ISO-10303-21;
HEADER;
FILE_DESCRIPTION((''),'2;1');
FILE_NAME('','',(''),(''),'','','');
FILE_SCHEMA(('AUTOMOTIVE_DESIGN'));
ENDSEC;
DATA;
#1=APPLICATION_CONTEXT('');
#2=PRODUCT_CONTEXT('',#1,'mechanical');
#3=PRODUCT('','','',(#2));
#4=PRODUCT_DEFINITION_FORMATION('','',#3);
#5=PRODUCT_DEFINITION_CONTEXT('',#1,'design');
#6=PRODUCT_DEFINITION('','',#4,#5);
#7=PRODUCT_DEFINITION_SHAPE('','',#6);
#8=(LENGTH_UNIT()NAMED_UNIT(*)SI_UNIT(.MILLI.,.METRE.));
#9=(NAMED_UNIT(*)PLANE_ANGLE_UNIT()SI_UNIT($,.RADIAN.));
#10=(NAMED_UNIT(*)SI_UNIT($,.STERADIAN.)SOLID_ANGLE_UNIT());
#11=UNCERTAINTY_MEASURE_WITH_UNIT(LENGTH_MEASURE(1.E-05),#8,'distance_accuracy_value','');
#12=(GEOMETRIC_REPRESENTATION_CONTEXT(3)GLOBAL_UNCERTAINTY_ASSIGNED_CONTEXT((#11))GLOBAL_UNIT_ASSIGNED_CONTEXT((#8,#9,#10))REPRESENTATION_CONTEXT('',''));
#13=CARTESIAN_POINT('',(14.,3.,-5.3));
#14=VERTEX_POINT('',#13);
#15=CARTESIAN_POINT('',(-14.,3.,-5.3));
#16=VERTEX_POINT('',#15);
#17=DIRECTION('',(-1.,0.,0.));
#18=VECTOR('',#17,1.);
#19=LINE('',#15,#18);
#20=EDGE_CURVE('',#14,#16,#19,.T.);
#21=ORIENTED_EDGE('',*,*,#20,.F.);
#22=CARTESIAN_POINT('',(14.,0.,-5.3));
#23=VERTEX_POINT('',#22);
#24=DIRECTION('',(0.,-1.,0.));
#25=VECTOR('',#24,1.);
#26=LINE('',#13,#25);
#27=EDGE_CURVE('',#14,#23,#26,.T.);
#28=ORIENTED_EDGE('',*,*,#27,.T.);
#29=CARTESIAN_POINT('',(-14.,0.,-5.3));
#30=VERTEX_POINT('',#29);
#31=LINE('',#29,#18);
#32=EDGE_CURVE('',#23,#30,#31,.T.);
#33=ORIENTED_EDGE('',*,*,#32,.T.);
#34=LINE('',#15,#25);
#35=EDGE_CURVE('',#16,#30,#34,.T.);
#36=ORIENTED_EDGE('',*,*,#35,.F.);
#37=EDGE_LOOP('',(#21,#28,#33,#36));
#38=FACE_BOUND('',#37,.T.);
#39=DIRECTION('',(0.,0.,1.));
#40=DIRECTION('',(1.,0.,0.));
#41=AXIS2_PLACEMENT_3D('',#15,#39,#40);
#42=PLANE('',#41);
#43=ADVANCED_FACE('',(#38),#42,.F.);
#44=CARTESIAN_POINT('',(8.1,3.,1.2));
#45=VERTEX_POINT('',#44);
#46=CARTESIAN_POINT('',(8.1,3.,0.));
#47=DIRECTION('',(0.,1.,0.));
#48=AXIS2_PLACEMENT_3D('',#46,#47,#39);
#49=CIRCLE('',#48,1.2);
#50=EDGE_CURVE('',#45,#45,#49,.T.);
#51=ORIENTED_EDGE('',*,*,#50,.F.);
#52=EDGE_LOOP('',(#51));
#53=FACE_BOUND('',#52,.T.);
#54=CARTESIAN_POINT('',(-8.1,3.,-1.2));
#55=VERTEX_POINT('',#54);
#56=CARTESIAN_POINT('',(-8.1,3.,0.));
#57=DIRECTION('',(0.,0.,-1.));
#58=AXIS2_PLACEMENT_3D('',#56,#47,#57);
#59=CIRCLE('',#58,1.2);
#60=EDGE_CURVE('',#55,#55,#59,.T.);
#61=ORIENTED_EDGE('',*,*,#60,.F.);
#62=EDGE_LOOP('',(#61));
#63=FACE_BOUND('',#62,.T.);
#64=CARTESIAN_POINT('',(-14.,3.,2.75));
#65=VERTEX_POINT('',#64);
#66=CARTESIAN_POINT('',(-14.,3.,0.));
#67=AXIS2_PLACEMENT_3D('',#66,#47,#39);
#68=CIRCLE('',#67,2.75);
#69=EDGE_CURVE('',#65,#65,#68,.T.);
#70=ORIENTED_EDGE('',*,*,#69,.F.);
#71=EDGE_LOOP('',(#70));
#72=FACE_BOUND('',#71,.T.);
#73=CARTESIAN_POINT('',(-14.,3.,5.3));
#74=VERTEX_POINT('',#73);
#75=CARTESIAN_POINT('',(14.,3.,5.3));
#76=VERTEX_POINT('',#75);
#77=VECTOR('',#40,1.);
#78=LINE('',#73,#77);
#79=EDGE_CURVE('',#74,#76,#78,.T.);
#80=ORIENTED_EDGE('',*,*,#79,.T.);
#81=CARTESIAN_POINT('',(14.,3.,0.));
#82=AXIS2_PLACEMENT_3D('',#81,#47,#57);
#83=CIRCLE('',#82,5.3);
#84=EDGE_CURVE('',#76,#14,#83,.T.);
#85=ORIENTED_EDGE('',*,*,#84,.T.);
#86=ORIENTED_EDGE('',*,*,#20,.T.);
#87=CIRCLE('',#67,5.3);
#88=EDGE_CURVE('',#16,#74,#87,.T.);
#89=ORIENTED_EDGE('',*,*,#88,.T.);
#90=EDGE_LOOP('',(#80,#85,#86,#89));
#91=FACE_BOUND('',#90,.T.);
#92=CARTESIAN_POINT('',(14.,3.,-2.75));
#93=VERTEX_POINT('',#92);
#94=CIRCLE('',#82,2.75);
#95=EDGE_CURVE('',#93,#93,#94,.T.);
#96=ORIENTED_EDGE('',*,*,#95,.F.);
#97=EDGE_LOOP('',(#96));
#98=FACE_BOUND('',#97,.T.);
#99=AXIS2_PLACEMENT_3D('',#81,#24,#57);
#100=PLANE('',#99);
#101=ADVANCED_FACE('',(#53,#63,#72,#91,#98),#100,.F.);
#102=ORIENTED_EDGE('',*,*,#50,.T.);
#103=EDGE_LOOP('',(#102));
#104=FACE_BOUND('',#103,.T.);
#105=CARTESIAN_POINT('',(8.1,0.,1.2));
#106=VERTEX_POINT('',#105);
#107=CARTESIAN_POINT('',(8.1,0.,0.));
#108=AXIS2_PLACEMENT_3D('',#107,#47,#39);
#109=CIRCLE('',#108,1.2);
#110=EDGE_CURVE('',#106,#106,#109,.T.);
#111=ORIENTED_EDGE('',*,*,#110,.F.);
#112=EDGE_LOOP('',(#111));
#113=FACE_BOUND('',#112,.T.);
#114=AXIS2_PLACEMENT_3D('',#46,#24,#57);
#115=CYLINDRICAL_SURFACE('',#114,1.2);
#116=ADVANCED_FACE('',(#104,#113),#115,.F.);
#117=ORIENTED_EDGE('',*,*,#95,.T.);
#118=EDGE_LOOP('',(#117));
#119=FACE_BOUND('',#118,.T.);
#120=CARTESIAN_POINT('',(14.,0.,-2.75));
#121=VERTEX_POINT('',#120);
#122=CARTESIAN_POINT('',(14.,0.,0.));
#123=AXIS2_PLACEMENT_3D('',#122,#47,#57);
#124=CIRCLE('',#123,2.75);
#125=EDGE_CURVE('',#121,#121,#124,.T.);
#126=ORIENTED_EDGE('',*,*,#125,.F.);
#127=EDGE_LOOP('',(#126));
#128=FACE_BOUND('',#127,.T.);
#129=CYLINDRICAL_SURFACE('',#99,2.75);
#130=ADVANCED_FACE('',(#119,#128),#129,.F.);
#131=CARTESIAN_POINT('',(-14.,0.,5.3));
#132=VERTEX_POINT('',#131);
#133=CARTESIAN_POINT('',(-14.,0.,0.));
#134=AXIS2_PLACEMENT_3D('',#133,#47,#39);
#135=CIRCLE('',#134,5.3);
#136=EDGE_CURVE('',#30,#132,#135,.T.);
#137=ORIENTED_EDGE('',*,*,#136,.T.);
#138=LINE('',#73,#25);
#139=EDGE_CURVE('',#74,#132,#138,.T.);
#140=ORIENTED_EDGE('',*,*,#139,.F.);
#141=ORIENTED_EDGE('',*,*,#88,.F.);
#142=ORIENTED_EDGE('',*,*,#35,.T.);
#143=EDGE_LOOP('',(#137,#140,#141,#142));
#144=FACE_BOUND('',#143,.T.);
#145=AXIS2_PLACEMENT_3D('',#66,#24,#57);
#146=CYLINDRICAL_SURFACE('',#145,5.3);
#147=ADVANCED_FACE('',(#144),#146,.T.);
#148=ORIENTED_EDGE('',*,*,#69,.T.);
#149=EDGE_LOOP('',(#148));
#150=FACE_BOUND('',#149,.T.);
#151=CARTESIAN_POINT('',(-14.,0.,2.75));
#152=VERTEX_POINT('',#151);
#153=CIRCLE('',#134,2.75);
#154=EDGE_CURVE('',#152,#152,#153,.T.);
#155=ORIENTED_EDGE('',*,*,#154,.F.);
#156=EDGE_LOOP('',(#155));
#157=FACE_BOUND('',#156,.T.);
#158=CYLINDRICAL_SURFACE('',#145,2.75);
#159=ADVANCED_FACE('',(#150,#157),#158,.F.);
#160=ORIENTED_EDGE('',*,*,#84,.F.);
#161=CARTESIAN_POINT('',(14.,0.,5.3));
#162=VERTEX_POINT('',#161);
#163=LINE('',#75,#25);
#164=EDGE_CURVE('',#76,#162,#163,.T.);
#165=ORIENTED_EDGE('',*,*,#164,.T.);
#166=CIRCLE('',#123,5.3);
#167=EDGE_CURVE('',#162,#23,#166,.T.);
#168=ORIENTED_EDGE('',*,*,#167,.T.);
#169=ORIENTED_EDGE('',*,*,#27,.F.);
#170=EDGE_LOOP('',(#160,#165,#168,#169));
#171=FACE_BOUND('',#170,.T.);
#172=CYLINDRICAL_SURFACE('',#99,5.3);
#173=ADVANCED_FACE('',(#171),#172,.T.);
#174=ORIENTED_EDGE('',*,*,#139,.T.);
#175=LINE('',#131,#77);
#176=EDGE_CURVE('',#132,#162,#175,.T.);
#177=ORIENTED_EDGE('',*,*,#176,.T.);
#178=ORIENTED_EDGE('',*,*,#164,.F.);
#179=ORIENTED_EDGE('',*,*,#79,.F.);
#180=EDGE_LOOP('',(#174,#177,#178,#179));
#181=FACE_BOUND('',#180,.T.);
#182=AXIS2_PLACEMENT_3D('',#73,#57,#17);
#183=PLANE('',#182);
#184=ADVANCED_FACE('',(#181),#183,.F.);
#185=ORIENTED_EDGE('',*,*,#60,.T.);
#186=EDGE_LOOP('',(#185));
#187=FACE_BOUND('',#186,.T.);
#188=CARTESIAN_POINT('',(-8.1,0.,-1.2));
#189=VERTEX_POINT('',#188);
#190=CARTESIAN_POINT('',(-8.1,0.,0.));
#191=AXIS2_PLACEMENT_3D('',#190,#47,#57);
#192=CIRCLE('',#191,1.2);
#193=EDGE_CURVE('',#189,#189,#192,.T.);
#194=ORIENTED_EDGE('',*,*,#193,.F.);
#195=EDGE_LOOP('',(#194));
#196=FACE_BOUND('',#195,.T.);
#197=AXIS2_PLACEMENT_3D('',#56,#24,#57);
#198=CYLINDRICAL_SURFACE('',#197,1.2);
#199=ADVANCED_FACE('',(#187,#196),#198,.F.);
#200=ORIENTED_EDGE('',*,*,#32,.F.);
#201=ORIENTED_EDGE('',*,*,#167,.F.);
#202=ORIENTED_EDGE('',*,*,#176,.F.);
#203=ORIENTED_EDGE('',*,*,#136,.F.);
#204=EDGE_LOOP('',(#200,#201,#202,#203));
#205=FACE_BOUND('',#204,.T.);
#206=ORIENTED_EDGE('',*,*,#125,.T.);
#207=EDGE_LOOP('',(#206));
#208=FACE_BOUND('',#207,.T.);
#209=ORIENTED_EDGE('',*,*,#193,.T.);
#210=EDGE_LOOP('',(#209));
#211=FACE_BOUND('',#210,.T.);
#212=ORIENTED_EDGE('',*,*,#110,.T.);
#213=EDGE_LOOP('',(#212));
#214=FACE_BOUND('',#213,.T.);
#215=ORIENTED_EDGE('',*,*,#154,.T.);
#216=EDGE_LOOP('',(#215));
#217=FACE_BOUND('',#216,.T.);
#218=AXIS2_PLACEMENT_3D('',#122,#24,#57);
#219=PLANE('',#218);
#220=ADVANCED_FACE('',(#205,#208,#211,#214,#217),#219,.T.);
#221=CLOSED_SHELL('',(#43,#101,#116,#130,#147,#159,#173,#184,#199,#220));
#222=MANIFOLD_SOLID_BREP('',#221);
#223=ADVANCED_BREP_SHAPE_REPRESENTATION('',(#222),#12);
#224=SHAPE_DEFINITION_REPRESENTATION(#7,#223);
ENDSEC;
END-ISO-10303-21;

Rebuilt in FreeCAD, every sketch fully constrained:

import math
import FreeCAD as App
import Part
import Sketcher

V = App.Vector

doc = App.newDocument("Part")
body = doc.addObject("PartDesign::Body", "Body")

# Sketch on XZ plane
sketch1 = body.newObject("Sketcher::SketchObject", "Sketch")
sketch1.AttachmentSupport = (doc.getObject("XZ_Plane"), [""])
sketch1.MapMode = "FlatFace"
sketch1.addGeometry(Part.LineSegment(V(14, -5.3, 0), V(-14, -5.3, 0)), False)
sketch1.addGeometry(Part.ArcOfCircle(Part.Circle(V(-14, 0, 0), V(0, 0, 1), 5.3), math.radians(90), math.radians(270)), False)
sketch1.addGeometry(Part.LineSegment(V(-14, 5.3, 0), V(14, 5.3, 0)), False)
sketch1.addGeometry(Part.ArcOfCircle(Part.Circle(V(14, 0, 0), V(0, 0, 1), 5.3), math.radians(-90), math.radians(90)), False)
sketch1.addGeometry(Part.Circle(V(14, 0, 0), V(0, 0, 1), 2.8), False)
sketch1.addGeometry(Part.Circle(V(8.1, 0, 0), V(0, 0, 1), 1.2), False)
sketch1.addGeometry(Part.Circle(V(-8.1, 0, 0), V(0, 0, 1), 1.2), False)
sketch1.addGeometry(Part.Circle(V(-14, 0, 0), V(0, 0, 1), 2.8), False)
sketch1.addConstraint(Sketcher.Constraint("Tangent", 0, 2, 1, 2))
sketch1.addConstraint(Sketcher.Constraint("Tangent", 1, 1, 2, 1))
sketch1.addConstraint(Sketcher.Constraint("Tangent", 2, 2, 3, 2))
sketch1.addConstraint(Sketcher.Constraint("Tangent", 3, 1, 0, 1))
sketch1.addConstraint(Sketcher.Constraint("Horizontal", 0))
sketch1.addConstraint(Sketcher.Constraint("Horizontal", 2))
sketch1.addConstraint(Sketcher.Constraint("Coincident", 4, 3, 3, 3))
sketch1.addConstraint(Sketcher.Constraint("Coincident", 7, 3, 1, 3))
sketch1.addConstraint(Sketcher.Constraint("Equal", 5, 6))
sketch1.addConstraint(Sketcher.Constraint("Equal", 4, 7))
sketch1.addConstraint(Sketcher.Constraint("Symmetric", 1, 3, 3, 3, -1, 1))
sketch1.addConstraint(Sketcher.Constraint("Symmetric", 5, 3, 6, 3, -1, 1))
sketch1.addConstraint(Sketcher.Constraint("PointOnObject", 5, 3, -1))
sketch1.addConstraint(Sketcher.Constraint("Diameter", 4, 5.5))
sketch1.addConstraint(Sketcher.Constraint("Diameter", 5, 2.4))
sketch1.addConstraint(Sketcher.Constraint("Radius", 1, 5.3))
sketch1.addConstraint(Sketcher.Constraint("DistanceX", 0, 2, 0, 1, 28.0))
sketch1.addConstraint(Sketcher.Constraint("DistanceX", -1, 1, 5, 3, 8.1))
pad1 = body.newObject("PartDesign::Pad", "Pad")
pad1.Profile = sketch1
pad1.Length = 3
pad1.Reversed = True

doc.recompute()
